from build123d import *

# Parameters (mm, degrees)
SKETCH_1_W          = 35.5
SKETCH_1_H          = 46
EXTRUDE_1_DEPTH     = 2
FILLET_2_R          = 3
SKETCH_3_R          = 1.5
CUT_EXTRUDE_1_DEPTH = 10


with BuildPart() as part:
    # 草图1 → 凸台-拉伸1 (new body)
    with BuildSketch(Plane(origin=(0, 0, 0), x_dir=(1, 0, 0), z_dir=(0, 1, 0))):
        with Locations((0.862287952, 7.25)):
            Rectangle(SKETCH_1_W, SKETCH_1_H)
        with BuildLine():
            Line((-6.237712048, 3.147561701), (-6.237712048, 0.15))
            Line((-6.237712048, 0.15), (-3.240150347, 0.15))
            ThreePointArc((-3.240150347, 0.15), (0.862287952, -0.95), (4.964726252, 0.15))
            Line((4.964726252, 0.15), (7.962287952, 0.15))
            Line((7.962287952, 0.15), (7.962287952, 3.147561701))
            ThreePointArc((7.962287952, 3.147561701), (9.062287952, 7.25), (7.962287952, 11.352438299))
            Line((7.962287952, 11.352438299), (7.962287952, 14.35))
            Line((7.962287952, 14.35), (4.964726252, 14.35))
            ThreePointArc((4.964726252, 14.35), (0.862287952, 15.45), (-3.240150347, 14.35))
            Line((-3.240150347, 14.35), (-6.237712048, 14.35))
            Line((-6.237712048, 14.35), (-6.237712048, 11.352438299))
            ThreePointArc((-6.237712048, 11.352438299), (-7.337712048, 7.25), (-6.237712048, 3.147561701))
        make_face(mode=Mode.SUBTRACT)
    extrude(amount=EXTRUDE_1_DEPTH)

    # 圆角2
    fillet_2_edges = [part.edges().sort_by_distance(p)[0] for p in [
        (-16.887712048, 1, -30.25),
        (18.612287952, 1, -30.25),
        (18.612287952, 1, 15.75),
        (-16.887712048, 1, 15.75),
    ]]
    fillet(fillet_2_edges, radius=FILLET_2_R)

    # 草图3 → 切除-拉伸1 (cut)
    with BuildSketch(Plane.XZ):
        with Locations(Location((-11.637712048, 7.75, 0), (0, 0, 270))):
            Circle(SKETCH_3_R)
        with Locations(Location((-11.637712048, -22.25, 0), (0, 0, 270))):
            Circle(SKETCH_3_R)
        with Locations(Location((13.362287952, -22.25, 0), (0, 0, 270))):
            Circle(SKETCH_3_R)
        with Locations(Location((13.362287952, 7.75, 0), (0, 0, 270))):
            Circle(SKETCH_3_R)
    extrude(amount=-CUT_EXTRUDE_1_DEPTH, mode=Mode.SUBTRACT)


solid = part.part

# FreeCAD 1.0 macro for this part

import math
import FreeCAD as App
import Part
import Sketcher

V = App.Vector


def edges_at(feature, points):
    """Names of the edges that pass closest to the given points."""
    edges = feature.Shape.Edges
    near = lambda p: min(range(len(edges)), key=lambda i: edges[i].distToShape(Part.Vertex(*p))[0])
    return sorted({f"Edge{near(p) + 1}" for p in points})


def add_polygon(sketch, points):
    """Adds a closed chain of lines whose ends are joined by coincident constraints."""
    first, n = sketch.GeometryCount, len(points)
    for a, b in zip(points, points[1:] + points[:1]):
        sketch.addGeometry(Part.LineSegment(App.Vector(*a, 0), App.Vector(*b, 0)), False)
    for i in range(n):
        sketch.addConstraint(Sketcher.Constraint("Coincident", first + i, 2, first + (i + 1) % n, 1))

doc = App.newDocument("Part")
params = doc.addObject("Spreadsheet::Sheet", "Params")
for row, (alias, value) in enumerate([
    ("sketch1_radius", "8.2 mm"),
    ("sketch1_height", "46 mm"),
    ("sketch1_width", "35.5 mm"),
    ("pad1_length", "2 mm"),
    ("fillet_radius", "3 mm"),
    ("sketch2_diameter", "3 mm"),
    ("pocket1_length", "10 mm"),
], start=1):
    params.set(f"A{row}", alias)
    params.set(f"B{row}", "=" + value)
    params.setAlias(f"B{row}", alias)

body = doc.addObject("PartDesign::Body", "Body")

# Sketch on XZ plane
sketch1 = doc.addObject("Sketcher::SketchObject", "Sketch")
body.addObject(sketch1)
sketch1.AttachmentSupport = (doc.XZ_Plane, [""])
sketch1.MapMode = "FlatFace"
add_polygon(sketch1, [(-16.9, -30.2), (-16.9, 15.8), (18.6, 15.8), (18.6, -30.2)])  # lines 0-3
sketch1.addGeometry(Part.LineSegment(V(-6.2, -0.1, 0), V(-6.2, -3.1, 0)), False)  # 4
sketch1.addGeometry(Part.ArcOfCircle(Part.Circle(V(0.9, -7.2, 0), V(0, 0, 1), 8.2), math.radians(150), math.radians(210)), False)  # 5
sketch1.addGeometry(Part.LineSegment(V(-6.2, -11.4, 0), V(-6.2, -14.3, 0)), False)  # 6
sketch1.addGeometry(Part.LineSegment(V(-6.2, -14.3, 0), V(-3.2, -14.3, 0)), False)  # 7
sketch1.addGeometry(Part.ArcOfCircle(Part.Circle(V(0.9, -7.2, 0), V(0, 0, 1), 8.2), math.radians(-120), math.radians(-60)), False)  # 8
sketch1.addGeometry(Part.LineSegment(V(5, -14.3, 0), V(8, -14.3, 0)), False)  # 9
sketch1.addGeometry(Part.LineSegment(V(8, -14.3, 0), V(8, -11.4, 0)), False)  # 10
sketch1.addGeometry(Part.ArcOfCircle(Part.Circle(V(0.9, -7.2, 0), V(0, 0, 1), 8.2), math.radians(-30), math.radians(30)), False)  # 11
sketch1.addGeometry(Part.LineSegment(V(8, -3.1, 0), V(8, -0.1, 0)), False)  # 12
sketch1.addGeometry(Part.LineSegment(V(8, -0.1, 0), V(5, -0.1, 0)), False)  # 13
sketch1.addGeometry(Part.ArcOfCircle(Part.Circle(V(0.9, -7.3, 0), V(0, 0, 1), 8.2), math.radians(60), math.radians(120)), False)  # 14
sketch1.addGeometry(Part.LineSegment(V(-3.2, -0.1, 0), V(-6.2, -0.1, 0)), False)  # 15
sketch1.addConstraint([
    Sketcher.Constraint("Coincident", 4, 2, 5, 1),
    Sketcher.Constraint("Coincident", 5, 2, 6, 1),
    Sketcher.Constraint("Coincident", 6, 2, 7, 1),
    Sketcher.Constraint("Coincident", 7, 2, 8, 1),
    Sketcher.Constraint("Coincident", 8, 2, 9, 1),
    Sketcher.Constraint("Coincident", 9, 2, 10, 1),
    Sketcher.Constraint("Coincident", 10, 2, 11, 1),
    Sketcher.Constraint("Coincident", 11, 2, 12, 1),
    Sketcher.Constraint("Coincident", 12, 2, 13, 1),
    Sketcher.Constraint("Coincident", 13, 2, 14, 1),
    Sketcher.Constraint("Coincident", 14, 2, 15, 1),
    Sketcher.Constraint("Coincident", 15, 2, 4, 1),
    Sketcher.Constraint("Vertical", 0),
    Sketcher.Constraint("Horizontal", 1),
    Sketcher.Constraint("Vertical", 2),
    Sketcher.Constraint("Horizontal", 3),
    Sketcher.Constraint("Vertical", 4),
    Sketcher.Constraint("Vertical", 6),
    Sketcher.Constraint("Horizontal", 7),
    Sketcher.Constraint("Horizontal", 9),
    Sketcher.Constraint("Vertical", 10),
    Sketcher.Constraint("Vertical", 12),
    Sketcher.Constraint("Horizontal", 13),
    Sketcher.Constraint("Horizontal", 15),
    Sketcher.Constraint("Coincident", 8, 3, 5, 3),
    Sketcher.Constraint("Coincident", 11, 3, 5, 3),
    Sketcher.Constraint("Coincident", 14, 3, 5, 3),
    Sketcher.Constraint("Equal", 5, 8),
    Sketcher.Constraint("Equal", 8, 11),
    Sketcher.Constraint("Equal", 11, 14),
    Sketcher.Constraint("Horizontal", 7, 2, 8, 2),
    Sketcher.Constraint("Horizontal", 5, 2, 10, 2),
    Sketcher.Constraint("Horizontal", 4, 2, 11, 2),
    Sketcher.Constraint("Horizontal", 13, 2, 14, 2),
    Sketcher.Constraint("Vertical", 4, 2, 5, 2),
    Sketcher.Constraint("Vertical", 8, 2, 13, 2),
    Sketcher.Constraint("Equal", 15, 4),
    Sketcher.Constraint("Radius", 5, 8.2),
    Sketcher.Constraint("DistanceY", 0, 1, 0, 2, 46.0),
    Sketcher.Constraint("DistanceX", 1, 1, 1, 2, 35.5),
    Sketcher.Constraint("DistanceY", 8, 3, 0, 2, 23.0),
    Sketcher.Constraint("DistanceX", 4, 2, 5, 3, 7.1),
    Sketcher.Constraint("DistanceY", 5, 3, -1, 1, 7.25),
    Sketcher.Constraint("DistanceX", 0, 2, 8, 3, 17.75),
    Sketcher.Constraint("DistanceX", 7, 2, -1, 1, 3.24015),
])
sketch1.setExpression("Constraints[41]", "Params.sketch1_radius")
sketch1.setExpression("Constraints[42]", "Params.sketch1_height")
sketch1.setExpression("Constraints[43]", "Params.sketch1_width")
pad1 = doc.addObject("PartDesign::Pad", "Pad")
body.addObject(pad1)
pad1.Profile = sketch1
pad1.setExpression("Length", "Params.pad1_length")
pad1.Reversed = True
doc.recompute()

fillet = doc.addObject("PartDesign::Fillet", "Fillet")
body.addObject(fillet)
fillet.Base = (pad1, edges_at(pad1, [
    (-16.888, 1, -30.25),
    (18.612, 1, -30.25),
    (18.612, 1, 15.75),
    (-16.888, 1, 15.75),
]))
fillet.setExpression("Radius", "Params.fillet_radius")

# Sketch on XZ plane
sketch2 = doc.addObject("Sketcher::SketchObject", "Sketch001")
body.addObject(sketch2)
sketch2.AttachmentSupport = (doc.XZ_Plane, [""])
sketch2.MapMode = "FlatFace"
sketch2.addGeometry([
    Part.Circle(V(-11.6, 7.8, 0), V(0, 0, 1), 1.5),
    Part.Circle(V(-11.6, -22.2, 0), V(0, 0, 1), 1.5),
    Part.Circle(V(13.4, -22.2, 0), V(0, 0, 1), 1.5),
    Part.Circle(V(13.4, 7.8, 0), V(0, 0, 1), 1.5),
], False)
sketch2.addConstraint([
    Sketcher.Constraint("Equal", 0, 1),
    Sketcher.Constraint("Equal", 1, 2),
    Sketcher.Constraint("Equal", 2, 3),
    Sketcher.Constraint("Horizontal", 1, 3, 2, 3),
    Sketcher.Constraint("Horizontal", 0, 3, 3, 3),
    Sketcher.Constraint("Vertical", 0, 3, 1, 3),
    Sketcher.Constraint("Vertical", 2, 3, 3, 3),
    Sketcher.Constraint("Diameter", 0, 3.0),
    Sketcher.Constraint("DistanceY", 1, 3, 0, 3, 30.0),
    Sketcher.Constraint("DistanceX", 1, 3, 2, 3, 25.0),
    Sketcher.Constraint("DistanceY", -1, 1, 0, 3, 7.75),
    Sketcher.Constraint("DistanceX", 0, 3, -1, 1, 11.637712),
])
sketch2.setExpression("Constraints[7]", "Params.sketch2_diameter")
pocket1 = doc.addObject("PartDesign::Pocket", "Pocket")
body.addObject(pocket1)
pocket1.Profile = sketch2
pocket1.setExpression("Length", "Params.pocket1_length")

doc.recompute()
